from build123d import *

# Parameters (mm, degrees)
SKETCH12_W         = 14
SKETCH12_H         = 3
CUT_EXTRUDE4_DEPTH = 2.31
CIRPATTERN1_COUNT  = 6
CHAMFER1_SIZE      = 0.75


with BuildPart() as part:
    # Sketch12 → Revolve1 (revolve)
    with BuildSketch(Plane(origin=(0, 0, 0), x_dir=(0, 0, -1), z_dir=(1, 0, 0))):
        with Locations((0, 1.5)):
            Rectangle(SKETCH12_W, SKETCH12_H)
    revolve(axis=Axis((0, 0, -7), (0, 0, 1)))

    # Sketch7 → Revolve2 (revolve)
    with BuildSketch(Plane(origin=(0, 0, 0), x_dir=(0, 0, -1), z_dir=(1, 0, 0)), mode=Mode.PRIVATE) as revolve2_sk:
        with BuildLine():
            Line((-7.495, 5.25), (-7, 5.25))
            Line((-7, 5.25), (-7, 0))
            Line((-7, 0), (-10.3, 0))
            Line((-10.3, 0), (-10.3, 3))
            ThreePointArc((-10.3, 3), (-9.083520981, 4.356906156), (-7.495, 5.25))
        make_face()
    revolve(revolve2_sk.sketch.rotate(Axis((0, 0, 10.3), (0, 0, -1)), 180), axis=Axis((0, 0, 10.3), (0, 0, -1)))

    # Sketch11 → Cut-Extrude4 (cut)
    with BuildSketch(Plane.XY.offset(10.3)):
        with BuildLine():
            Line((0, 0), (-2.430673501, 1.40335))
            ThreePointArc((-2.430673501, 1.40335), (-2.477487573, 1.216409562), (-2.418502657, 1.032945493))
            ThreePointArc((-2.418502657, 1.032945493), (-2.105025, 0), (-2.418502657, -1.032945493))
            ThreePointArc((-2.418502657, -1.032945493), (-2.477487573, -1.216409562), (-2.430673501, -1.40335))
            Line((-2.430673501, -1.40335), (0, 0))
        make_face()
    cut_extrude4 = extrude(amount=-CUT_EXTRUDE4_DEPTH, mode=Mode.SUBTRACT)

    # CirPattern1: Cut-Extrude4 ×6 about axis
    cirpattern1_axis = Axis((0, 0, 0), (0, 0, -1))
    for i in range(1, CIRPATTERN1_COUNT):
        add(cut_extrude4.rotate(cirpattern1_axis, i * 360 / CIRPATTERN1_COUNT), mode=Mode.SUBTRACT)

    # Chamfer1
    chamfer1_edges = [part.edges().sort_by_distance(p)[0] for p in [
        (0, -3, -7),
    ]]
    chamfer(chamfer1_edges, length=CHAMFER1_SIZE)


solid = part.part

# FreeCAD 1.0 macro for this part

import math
import FreeCAD as App
import Part
import Sketcher
Q = App.Units.Quantity


def edges_at(feature, points):
    """Names of the edges that pass closest to the given points."""
    edges = feature.Shape.Edges
    near = lambda p: min(range(len(edges)), key=lambda i: edges[i].distToShape(Part.Vertex(*p))[0])
    return sorted({f"Edge{near(p) + 1}" for p in points})


def add_polygon(sketch, points):
    """Adds a closed chain of lines whose ends are joined by coincident constraints."""
    first, n = sketch.GeometryCount, len(points)
    for a, b in zip(points, points[1:] + points[:1]):
        sketch.addGeometry(Part.LineSegment(App.Vector(*a, 0), App.Vector(*b, 0)), False)
    for i in range(n):
        sketch.addConstraint(Sketcher.Constraint("Coincident", first + i, 2, first + (i + 1) % n, 1))

doc = App.newDocument("Part")
body = doc.addObject("PartDesign::Body", "Body")

sketch1 = body.newObject("Sketcher::SketchObject", "Sketch")
sketch1.AttachmentSupport = (doc.getObject("YZ_Plane"), [""])
sketch1.MapMode = "FlatFace"
add_polygon(sketch1, [(3, 7), (0, 7), (0, -7), (3, -7)])
sketch1.addConstraint([
    Sketcher.Constraint("Horizontal", 0),
    Sketcher.Constraint("Vertical", 1),
    Sketcher.Constraint("Horizontal", 2),
    Sketcher.Constraint("Vertical", 3),
    Sketcher.Constraint("Symmetric", 0, 2, 1, 2, -1, 1),
    Sketcher.Constraint("DistanceX", 0, 2, 0, 1, 3.0),
    Sketcher.Constraint("DistanceY", 1, 2, 1, 1, 14.0),
])
revolution = body.newObject("PartDesign::Revolution", "Revolution")
revolution.Profile = sketch1
revolution.ReferenceAxis = (sketch1, ["V_Axis"])
revolution.Angle = 360

sketch2 = body.newObject("Sketcher::SketchObject", "Sketch001")
sketch2.AttachmentSupport = (doc.getObject("YZ_Plane"), [""])
sketch2.MapMode = "FlatFace"
sketch2.addGeometry([
    Part.LineSegment(App.Vector(5.25, 7, 0), App.Vector(5.25, 7.495, 0)),
    Part.ArcOfCircle(Part.Circle(App.Vector(0, 5.588676, 0), App.Vector(0, 0, 1), 5.585389), math.radians(19.956427), math.radians(57.512494)),
    Part.LineSegment(App.Vector(3, 10.3, 0), App.Vector(0, 10.3, 0)),
    Part.LineSegment(App.Vector(0, 10.3, 0), App.Vector(0, 7, 0)),
    Part.LineSegment(App.Vector(0, 7, 0), App.Vector(5.25, 7, 0)),
], False)
sketch2.addConstraint([
    Sketcher.Constraint("Coincident", 0, 2, 1, 1),
    Sketcher.Constraint("Coincident", 1, 2, 2, 1),
    Sketcher.Constraint("Coincident", 2, 2, 3, 1),
    Sketcher.Constraint("Coincident", 3, 2, 4, 1),
    Sketcher.Constraint("Coincident", 4, 2, 0, 1),
    Sketcher.Constraint("Vertical", 0),
    Sketcher.Constraint("Horizontal", 2),
    Sketcher.Constraint("Vertical", 3),
    Sketcher.Constraint("Horizontal", 4),
    Sketcher.Constraint("PointOnObject", 1, 3, -2),
    Sketcher.Constraint("PointOnObject", 2, 2, -2),
    Sketcher.Constraint("DistanceX", 2, 2, 2, 1, 3.0),
    Sketcher.Constraint("DistanceY", 3, 2, 3, 1, 3.3),
    Sketcher.Constraint("DistanceY", -1, 1, 3, 2, 7.0),
    Sketcher.Constraint("DistanceX", 4, 1, 4, 2, 5.25),
    Sketcher.Constraint("DistanceY", 0, 1, 0, 2, 0.495),
])
revolution2 = body.newObject("PartDesign::Revolution", "Revolution001")
revolution2.Profile = sketch2
revolution2.ReferenceAxis = (sketch2, ["V_Axis"])
revolution2.Angle = 360

sketch3 = body.newObject("Sketcher::SketchObject", "Sketch002")
sketch3.AttachmentSupport = (doc.getObject("XY_Plane"), [""])
sketch3.MapMode = "FlatFace"
sketch3.AttachmentOffset = App.Placement(App.Vector(0, 0, 10.3), App.Rotation())
sketch3.addGeometry([
    Part.LineSegment(App.Vector(0, 0, 0), App.Vector(-2.430674, 1.40335, 0)),
    Part.ArcOfCircle(Part.Circle(App.Vector(-2.126839, 1.227931, 0), App.Vector(0, 0, 1), 0.350838), math.radians(150), math.radians(213.763924)),
    Part.ArcOfCircle(Part.Circle(App.Vector(-3.963602, 0, 0), App.Vector(0, 0, 1), 1.858577), math.radians(-33.763924), math.radians(33.763924)),
    Part.ArcOfCircle(Part.Circle(App.Vector(-2.126839, -1.227931, 0), App.Vector(0, 0, 1), 0.350838), math.radians(146.236076), math.radians(210)),
    Part.LineSegment(App.Vector(-2.430674, -1.40335, 0), App.Vector(0, 0, 0)),
], False)
sketch3.addConstraint([
    Sketcher.Constraint("Coincident", 0, 2, 1, 1),
    Sketcher.Constraint("Tangent", 1, 2, 2, 2),
    Sketcher.Constraint("Tangent", 2, 1, 3, 1),
    Sketcher.Constraint("Coincident", 3, 2, 4, 1),
    Sketcher.Constraint("Coincident", 4, 2, 0, 1),
    Sketcher.Constraint("Coincident", 4, 2, -1, 1),
    Sketcher.Constraint("Equal", 1, 3),
    Sketcher.Constraint("Symmetric", 1, 3, 3, 3, -1),
    Sketcher.Constraint("Vertical", 0, 2, 3, 2),
    Sketcher.Constraint("Angle", 0, Q("150 deg")),
    Sketcher.Constraint("Radius", 1, 0.350838),
    Sketcher.Constraint("Radius", 2, 1.858577),
    Sketcher.Constraint("Distance", 0, 2.8067),
    Sketcher.Constraint("DistanceX", 2, 3, -1, 1, 3.963602),
])
pocket1 = body.newObject("PartDesign::Pocket", "Pocket")
pocket1.Profile = sketch3
pocket1.Length = 2.31
doc.recompute()

polarpattern = body.newObject("PartDesign::PolarPattern", "PolarPattern")
polarpattern.Originals = [pocket1]
polarpattern.Axis = (doc.getObject("Z_Axis"), [""])
polarpattern.Angle = 360
polarpattern.Occurrences = 6
body.Tip = polarpattern
doc.recompute()

chamfer = body.newObject("PartDesign::Chamfer", "Chamfer")
chamfer.Base = (polarpattern, edges_at(polarpattern, [(0, -3, -7)]))
chamfer.Size = 0.75

doc.recompute()
